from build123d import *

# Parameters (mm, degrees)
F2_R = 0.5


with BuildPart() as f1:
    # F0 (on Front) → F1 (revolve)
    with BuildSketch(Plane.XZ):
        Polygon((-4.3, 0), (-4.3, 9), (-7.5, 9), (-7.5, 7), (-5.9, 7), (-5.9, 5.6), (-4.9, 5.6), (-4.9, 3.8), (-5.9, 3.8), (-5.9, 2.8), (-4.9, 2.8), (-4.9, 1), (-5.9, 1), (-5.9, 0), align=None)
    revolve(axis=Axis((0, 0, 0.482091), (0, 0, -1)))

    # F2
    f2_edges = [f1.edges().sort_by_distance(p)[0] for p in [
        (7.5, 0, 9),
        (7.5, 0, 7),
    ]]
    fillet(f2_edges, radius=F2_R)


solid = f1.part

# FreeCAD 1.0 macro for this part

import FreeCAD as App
import Part
import Sketcher

V = App.Vector


def edges_at(feature, points):
    """Names of the edges that pass closest to the given points."""
    edges = feature.Shape.Edges
    near = lambda p: min(range(len(edges)), key=lambda i: edges[i].distToShape(Part.Vertex(*p))[0])
    return sorted({f"Edge{near(p) + 1}" for p in points})


def add_polygon(sketch, points):
    """Adds a closed chain of lines whose ends are joined by coincident constraints."""
    first, n = sketch.GeometryCount, len(points)
    for a, b in zip(points, points[1:] + points[:1]):
        sketch.addGeometry(Part.LineSegment(App.Vector(*a, 0), App.Vector(*b, 0)), False)
    for i in range(n):
        sketch.addConstraint(Sketcher.Constraint("Coincident", first + i, 2, first + (i + 1) % n, 1))

doc = App.newDocument("Part")
body = doc.addObject("PartDesign::Body", "Body")

sketch1 = body.newObject("Sketcher::SketchObject", "Sketch")
sketch1.AttachmentSupport = (doc.getObject("XZ_Plane"), [""])
sketch1.MapMode = "FlatFace"
add_polygon(sketch1, [(-4.3, 0), (-4.3, 9), (-7.5, 9), (-7.5, 7), (-5.9, 7), (-5.9, 5.6), (-4.9, 5.6), (-4.9, 3.8), (-5.9, 3.8), (-5.9, 2.8), (-4.9, 2.8), (-4.9, 1), (-5.9, 1), (-5.9, 0)])
sketch1.addConstraint([
    Sketcher.Constraint("Vertical", 0),
    Sketcher.Constraint("Horizontal", 1),
    Sketcher.Constraint("Vertical", 2),
    Sketcher.Constraint("Horizontal", 3),
    Sketcher.Constraint("Vertical", 4),
    Sketcher.Constraint("Horizontal", 5),
    Sketcher.Constraint("Vertical", 6),
    Sketcher.Constraint("Horizontal", 7),
    Sketcher.Constraint("Vertical", 8),
    Sketcher.Constraint("Horizontal", 9),
    Sketcher.Constraint("Vertical", 10),
    Sketcher.Constraint("Horizontal", 11),
    Sketcher.Constraint("Vertical", 12),
    Sketcher.Constraint("Horizontal", 13),
    Sketcher.Constraint("PointOnObject", 12, 2, -1),
    Sketcher.Constraint("Vertical", 4, 2, 7, 2),
    Sketcher.Constraint("Vertical", 6, 2, 9, 2),
    Sketcher.Constraint("Vertical", 8, 2, 11, 2),
    Sketcher.Constraint("Equal", 3, 13),
    Sketcher.Constraint("Equal", 11, 8),
    Sketcher.Constraint("Equal", 6, 10),
    Sketcher.Constraint("Equal", 8, 12),
    Sketcher.Constraint("DistanceX", 5, 1, 5, 2, 1.0),
    Sketcher.Constraint("DistanceY", 0, 1, 0, 2, 9.0),
    Sketcher.Constraint("DistanceY", 2, 2, 2, 1, 2.0),
    Sketcher.Constraint("DistanceX", 1, 2, 1, 1, 3.2),
    Sketcher.Constraint("DistanceY", 4, 2, 4, 1, 1.4),
    Sketcher.Constraint("DistanceX", 0, 2, -1, 1, 4.3),
])
revolution = body.newObject("PartDesign::Revolution", "Revolution")
revolution.Profile = sketch1
revolution.ReferenceAxis = (sketch1, ["V_Axis"])
revolution.Angle = 360
doc.recompute()

fillet = body.newObject("PartDesign::Fillet", "Fillet")
fillet.Base = (revolution, edges_at(revolution, [(7.5, 0, 9), (7.5, 0, 7)]))
fillet.Radius = 0.5

doc.recompute()
